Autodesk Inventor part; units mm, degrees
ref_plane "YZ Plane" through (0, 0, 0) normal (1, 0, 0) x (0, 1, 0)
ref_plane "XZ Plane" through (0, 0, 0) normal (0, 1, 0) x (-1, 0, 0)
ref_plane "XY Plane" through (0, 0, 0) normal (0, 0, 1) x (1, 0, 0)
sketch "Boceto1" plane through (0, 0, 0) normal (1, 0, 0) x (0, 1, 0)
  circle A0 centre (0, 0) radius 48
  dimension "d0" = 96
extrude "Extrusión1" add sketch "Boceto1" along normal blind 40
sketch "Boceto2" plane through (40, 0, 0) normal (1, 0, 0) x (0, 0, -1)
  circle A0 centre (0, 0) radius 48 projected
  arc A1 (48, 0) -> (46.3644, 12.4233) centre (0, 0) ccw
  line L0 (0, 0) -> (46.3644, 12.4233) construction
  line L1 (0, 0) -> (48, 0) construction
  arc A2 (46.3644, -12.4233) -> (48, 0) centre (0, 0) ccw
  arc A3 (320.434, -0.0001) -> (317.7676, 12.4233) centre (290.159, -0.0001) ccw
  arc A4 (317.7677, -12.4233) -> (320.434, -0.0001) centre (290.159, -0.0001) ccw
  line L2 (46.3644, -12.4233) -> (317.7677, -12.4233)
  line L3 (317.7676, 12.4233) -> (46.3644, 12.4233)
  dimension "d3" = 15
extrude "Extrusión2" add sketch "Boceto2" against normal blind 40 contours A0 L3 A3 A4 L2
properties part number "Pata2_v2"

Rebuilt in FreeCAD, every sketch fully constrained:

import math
import FreeCAD as App
import Part
import Sketcher

V = App.Vector
Q = App.Units.Quantity

doc = App.newDocument("Part")
params = doc.addObject("Spreadsheet::Sheet", "Params")
for row, (alias, value) in enumerate([
    ("sketch1_diameter", "96 mm"),
    ("pad1_length", "40 mm"),
    ("sketch2_radius", "48 mm"),
    ("pad2_length", "40 mm"),
], start=1):
    params.set(f"A{row}", alias)
    params.set(f"B{row}", "=" + value)
    params.setAlias(f"B{row}", alias)

body = doc.addObject("PartDesign::Body", "Body")

sketch1 = doc.addObject("Sketcher::SketchObject", "Sketch")
body.addObject(sketch1)
sketch1.AttachmentSupport = (doc.YZ_Plane, [""])
sketch1.MapMode = "FlatFace"
sketch1.addGeometry(Part.Circle(V(0, 0, 0), V(0, 0, 1), 48), False)
sketch1.addConstraint(Sketcher.Constraint("Coincident", 0, 3, -1, 1))
sketch1.addConstraint(Sketcher.Constraint("Diameter", 0, Q("96 mm")))
sketch1.setExpression("Constraints[1]", "Params.sketch1_diameter")
pad1 = doc.addObject("PartDesign::Pad", "Pad")
body.addObject(pad1)
pad1.Profile = sketch1
pad1.setExpression("Length", "Params.pad1_length")

sketch2 = doc.addObject("Sketcher::SketchObject", "Sketch001")
body.addObject(sketch2)
sketch2.AttachmentSupport = (doc.YZ_Plane, [""])
sketch2.MapMode = "FlatFace"
sketch2.AttachmentOffset = App.Placement(V(0, 0, 40), App.Rotation())
sketch2.addGeometry(Part.ArcOfCircle(Part.Circle(V(0, 0, 0), V(0, 0, 1), 48), math.radians(-104.999996), math.radians(-75.000004)), False)
sketch2.addGeometry(Part.LineSegment(V(-12.4233, -46.3644, 0), V(-12.4233, -317.7677, 0)), False)
sketch2.addGeometry(Part.ArcOfCircle(Part.Circle(V(-0.0001, -290.159, 0), V(0, 0, 1), 30.275), math.radians(-114.226511), math.radians(-90)), False)
sketch2.addGeometry(Part.ArcOfCircle(Part.Circle(V(-0.0001, -290.159, 0), V(0, 0, 1), 30.27501), math.radians(-90), math.radians(-65.773066)), False)
sketch2.addGeometry(Part.LineSegment(V(12.4233, -317.7676, 0), V(12.4233, -46.3644, 0)), False)
sketch2.addConstraint(Sketcher.Constraint("Coincident", 0, 1, 1, 1))
sketch2.addConstraint(Sketcher.Constraint("Coincident", 1, 2, 2, 1))
sketch2.addConstraint(Sketcher.Constraint("Tangent", 2, 2, 3, 1))
sketch2.addConstraint(Sketcher.Constraint("Coincident", 3, 2, 4, 1))
sketch2.addConstraint(Sketcher.Constraint("Coincident", 4, 2, 0, 2))
sketch2.addConstraint(Sketcher.Constraint("Vertical", 1))
sketch2.addConstraint(Sketcher.Constraint("Vertical", 4))
sketch2.addConstraint(Sketcher.Constraint("Coincident", 0, 3, -1, 1))
sketch2.addConstraint(Sketcher.Constraint("Equal", 2, 3))
sketch2.addConstraint(Sketcher.Constraint("Symmetric", 1, 2, 3, 2, -2))
sketch2.addConstraint(Sketcher.Constraint("PointOnObject", 2, 2, -2))
sketch2.addConstraint(Sketcher.Constraint("Radius", 0, Q("48 mm")))
sketch2.addConstraint(Sketcher.Constraint("Radius", 2, Q("30.275 mm")))
sketch2.addConstraint(Sketcher.Constraint("DistanceY", 1, 2, 1, 1, Q("271.4033 mm")))
sketch2.addConstraint(Sketcher.Constraint("DistanceY", 2, 3, -1, 1, Q("290.159 mm")))
sketch2.setExpression("Constraints[11]", "Params.sketch2_radius")
pad2 = doc.addObject("PartDesign::Pad", "Pad001")
body.addObject(pad2)
pad2.Profile = sketch2
pad2.setExpression("Length", "Params.pad2_length")
pad2.Reversed = True

doc.recompute()
